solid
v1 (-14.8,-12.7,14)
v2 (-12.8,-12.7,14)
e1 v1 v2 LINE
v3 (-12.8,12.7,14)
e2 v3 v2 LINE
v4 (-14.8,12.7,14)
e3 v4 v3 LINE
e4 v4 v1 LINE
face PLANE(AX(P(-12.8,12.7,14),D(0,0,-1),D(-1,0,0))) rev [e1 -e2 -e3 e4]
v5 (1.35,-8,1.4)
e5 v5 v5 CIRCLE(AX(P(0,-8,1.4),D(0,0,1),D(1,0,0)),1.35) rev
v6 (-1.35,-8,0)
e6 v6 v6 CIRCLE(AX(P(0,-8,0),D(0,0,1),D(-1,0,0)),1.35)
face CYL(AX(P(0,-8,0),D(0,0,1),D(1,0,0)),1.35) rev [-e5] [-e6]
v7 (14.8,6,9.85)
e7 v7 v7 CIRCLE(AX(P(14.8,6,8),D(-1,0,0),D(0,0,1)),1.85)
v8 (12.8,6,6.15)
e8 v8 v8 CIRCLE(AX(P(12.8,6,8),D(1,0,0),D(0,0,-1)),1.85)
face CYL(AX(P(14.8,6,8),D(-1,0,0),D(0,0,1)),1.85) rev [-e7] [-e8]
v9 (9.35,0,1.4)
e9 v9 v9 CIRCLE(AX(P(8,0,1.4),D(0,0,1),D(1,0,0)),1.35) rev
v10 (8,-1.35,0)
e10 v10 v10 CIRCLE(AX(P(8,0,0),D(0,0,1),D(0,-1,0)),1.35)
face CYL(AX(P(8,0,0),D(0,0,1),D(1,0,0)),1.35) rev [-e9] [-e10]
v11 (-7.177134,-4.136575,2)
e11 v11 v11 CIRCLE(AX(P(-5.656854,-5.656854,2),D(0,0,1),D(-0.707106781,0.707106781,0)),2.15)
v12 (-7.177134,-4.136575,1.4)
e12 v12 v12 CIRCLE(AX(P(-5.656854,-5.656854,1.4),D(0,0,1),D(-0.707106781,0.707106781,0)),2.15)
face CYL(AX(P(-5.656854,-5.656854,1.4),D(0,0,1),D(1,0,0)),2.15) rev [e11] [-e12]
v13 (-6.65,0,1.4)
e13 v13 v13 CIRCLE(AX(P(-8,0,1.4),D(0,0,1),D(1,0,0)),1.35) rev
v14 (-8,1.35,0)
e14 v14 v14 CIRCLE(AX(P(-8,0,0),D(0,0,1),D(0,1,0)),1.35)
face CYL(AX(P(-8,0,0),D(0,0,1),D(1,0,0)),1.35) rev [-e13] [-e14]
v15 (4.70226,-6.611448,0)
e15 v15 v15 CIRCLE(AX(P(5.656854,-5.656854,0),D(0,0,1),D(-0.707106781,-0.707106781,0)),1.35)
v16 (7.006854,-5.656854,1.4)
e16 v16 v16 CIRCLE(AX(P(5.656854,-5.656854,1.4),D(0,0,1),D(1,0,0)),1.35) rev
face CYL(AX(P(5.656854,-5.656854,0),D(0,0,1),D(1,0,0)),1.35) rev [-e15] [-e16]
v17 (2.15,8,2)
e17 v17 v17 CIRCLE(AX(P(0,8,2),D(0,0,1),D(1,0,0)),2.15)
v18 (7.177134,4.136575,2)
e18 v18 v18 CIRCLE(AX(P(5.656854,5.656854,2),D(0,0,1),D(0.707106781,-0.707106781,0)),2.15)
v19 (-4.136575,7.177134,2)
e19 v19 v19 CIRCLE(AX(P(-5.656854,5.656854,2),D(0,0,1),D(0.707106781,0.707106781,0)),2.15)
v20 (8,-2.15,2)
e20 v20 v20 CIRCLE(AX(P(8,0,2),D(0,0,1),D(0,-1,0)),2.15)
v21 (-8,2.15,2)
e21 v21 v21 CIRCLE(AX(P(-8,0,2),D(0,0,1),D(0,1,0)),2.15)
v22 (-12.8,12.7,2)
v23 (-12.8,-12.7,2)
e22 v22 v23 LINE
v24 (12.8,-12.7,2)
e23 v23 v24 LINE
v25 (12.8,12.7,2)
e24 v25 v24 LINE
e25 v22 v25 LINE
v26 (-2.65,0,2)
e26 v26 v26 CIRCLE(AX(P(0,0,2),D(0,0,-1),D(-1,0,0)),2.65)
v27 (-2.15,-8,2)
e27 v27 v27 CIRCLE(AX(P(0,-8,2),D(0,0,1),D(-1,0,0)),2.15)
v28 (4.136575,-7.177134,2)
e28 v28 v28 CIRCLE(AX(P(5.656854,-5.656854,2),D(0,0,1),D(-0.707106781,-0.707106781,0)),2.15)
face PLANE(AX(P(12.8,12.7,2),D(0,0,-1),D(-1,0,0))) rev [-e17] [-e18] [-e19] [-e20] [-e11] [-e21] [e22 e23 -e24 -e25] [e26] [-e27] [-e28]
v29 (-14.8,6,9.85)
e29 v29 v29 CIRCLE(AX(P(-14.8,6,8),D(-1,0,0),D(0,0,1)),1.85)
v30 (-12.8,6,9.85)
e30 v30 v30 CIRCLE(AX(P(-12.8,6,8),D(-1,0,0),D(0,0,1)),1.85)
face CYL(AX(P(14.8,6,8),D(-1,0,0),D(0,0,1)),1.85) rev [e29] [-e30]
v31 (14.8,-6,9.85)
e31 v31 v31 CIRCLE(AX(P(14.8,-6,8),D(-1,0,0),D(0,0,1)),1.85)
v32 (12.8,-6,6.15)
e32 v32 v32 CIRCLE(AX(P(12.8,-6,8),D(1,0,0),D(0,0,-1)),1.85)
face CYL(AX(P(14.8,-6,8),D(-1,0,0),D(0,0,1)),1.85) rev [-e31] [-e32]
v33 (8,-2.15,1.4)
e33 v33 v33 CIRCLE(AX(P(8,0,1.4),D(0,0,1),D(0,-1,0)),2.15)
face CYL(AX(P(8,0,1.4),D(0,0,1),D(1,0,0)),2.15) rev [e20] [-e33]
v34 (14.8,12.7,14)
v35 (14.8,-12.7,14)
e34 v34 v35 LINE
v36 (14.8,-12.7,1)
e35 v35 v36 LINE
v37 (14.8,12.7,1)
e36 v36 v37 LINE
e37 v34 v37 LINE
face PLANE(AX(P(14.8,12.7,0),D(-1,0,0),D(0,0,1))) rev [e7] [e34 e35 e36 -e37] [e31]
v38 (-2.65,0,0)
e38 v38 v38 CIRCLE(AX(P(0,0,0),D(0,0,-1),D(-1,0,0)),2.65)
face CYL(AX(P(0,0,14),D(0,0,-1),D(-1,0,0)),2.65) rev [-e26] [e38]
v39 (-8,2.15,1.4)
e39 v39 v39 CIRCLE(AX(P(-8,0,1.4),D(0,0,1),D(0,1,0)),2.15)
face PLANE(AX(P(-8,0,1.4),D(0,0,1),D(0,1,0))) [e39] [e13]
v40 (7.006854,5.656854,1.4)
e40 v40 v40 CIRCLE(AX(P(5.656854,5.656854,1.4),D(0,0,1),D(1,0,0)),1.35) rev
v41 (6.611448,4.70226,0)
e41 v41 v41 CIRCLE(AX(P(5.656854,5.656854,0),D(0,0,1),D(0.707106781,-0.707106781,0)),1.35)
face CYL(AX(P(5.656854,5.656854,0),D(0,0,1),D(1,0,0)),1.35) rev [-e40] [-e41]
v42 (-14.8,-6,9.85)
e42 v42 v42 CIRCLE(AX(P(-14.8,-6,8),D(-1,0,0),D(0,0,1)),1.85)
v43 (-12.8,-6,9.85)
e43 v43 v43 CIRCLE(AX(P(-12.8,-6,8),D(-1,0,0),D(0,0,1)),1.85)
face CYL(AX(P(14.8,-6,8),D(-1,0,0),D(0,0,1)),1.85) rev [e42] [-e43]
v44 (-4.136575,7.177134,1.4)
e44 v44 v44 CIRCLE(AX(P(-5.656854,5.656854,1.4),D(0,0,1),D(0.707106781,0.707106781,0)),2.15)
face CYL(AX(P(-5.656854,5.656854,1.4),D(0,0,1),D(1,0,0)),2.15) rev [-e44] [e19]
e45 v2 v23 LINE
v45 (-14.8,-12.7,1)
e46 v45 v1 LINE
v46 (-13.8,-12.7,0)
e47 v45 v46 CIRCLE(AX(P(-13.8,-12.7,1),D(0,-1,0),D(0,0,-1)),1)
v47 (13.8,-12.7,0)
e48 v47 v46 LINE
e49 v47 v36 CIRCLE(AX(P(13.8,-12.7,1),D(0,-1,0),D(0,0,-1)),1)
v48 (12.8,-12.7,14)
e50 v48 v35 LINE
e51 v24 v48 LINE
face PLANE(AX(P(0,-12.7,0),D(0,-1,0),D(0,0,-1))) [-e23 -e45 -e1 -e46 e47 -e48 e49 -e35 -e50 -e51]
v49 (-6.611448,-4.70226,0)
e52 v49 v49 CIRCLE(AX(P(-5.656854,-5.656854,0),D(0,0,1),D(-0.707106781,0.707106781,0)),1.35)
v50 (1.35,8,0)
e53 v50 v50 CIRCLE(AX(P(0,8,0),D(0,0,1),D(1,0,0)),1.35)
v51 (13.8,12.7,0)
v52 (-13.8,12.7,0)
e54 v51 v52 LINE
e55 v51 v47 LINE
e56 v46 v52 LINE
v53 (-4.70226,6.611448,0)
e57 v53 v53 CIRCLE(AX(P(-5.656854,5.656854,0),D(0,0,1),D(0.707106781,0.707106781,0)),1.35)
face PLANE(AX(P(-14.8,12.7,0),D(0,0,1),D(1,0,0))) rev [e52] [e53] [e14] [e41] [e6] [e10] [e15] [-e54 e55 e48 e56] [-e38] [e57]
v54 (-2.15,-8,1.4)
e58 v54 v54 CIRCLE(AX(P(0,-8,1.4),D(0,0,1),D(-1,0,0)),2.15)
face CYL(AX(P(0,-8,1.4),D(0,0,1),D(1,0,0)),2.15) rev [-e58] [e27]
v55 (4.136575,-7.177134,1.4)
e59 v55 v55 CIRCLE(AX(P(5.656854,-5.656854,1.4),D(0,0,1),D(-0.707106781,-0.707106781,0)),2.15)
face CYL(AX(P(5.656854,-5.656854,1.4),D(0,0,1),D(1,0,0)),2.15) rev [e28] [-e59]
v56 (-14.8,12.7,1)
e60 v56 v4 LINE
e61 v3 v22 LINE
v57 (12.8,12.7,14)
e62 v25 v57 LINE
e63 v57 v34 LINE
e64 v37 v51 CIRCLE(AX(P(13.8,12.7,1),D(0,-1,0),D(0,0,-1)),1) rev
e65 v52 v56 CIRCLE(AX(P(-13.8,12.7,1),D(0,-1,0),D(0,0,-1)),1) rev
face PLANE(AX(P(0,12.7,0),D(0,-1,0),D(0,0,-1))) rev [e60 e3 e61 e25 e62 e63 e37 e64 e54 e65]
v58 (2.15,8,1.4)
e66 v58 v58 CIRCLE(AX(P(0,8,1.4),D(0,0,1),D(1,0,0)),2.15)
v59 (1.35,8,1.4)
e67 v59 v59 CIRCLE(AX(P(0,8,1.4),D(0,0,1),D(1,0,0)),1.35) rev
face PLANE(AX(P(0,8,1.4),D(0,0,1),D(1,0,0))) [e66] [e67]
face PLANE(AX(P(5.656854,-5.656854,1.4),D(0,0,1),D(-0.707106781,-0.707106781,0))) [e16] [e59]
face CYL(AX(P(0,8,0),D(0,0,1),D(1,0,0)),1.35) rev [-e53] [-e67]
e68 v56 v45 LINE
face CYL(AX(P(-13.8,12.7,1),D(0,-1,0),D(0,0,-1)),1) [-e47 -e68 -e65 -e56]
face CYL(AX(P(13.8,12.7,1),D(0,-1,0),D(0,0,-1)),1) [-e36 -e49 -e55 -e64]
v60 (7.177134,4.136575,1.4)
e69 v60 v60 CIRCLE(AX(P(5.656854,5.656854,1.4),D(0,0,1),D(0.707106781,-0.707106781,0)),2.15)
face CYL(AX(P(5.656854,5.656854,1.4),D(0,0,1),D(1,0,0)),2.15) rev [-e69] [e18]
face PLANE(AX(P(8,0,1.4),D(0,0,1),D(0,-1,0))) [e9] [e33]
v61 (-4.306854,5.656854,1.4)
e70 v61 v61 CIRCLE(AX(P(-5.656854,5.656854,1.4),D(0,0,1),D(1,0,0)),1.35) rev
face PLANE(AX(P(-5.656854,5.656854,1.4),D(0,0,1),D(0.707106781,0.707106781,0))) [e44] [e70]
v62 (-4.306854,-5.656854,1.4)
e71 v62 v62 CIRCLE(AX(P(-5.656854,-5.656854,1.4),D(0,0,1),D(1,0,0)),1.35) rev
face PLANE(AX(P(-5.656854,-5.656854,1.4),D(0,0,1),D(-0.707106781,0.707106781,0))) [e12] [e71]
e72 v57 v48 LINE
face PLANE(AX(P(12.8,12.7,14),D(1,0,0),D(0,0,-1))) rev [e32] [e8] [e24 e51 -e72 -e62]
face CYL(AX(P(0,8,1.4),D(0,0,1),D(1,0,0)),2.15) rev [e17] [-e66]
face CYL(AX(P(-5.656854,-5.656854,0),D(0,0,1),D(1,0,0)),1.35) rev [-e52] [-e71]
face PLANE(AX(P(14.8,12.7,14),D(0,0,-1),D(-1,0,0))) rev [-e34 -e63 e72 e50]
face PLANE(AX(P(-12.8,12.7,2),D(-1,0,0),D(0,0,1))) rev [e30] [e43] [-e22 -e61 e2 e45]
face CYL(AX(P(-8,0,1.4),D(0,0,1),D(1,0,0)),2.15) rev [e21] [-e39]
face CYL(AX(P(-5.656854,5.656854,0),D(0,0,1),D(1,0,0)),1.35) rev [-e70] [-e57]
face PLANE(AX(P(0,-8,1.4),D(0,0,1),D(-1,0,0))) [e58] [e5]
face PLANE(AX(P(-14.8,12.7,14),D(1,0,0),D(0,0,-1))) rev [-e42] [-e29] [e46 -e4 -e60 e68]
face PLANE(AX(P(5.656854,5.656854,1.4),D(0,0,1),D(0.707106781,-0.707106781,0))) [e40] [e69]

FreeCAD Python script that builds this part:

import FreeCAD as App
import Part
import Sketcher

V = App.Vector


def edges_at(feature, points):
    """Names of the edges that pass closest to the given points."""
    edges = feature.Shape.Edges
    near = lambda p: min(range(len(edges)), key=lambda i: edges[i].distToShape(Part.Vertex(*p))[0])
    return sorted({f"Edge{near(p) + 1}" for p in points})

doc = App.newDocument("Part")
body = doc.addObject("PartDesign::Body", "Body")

sketch1 = doc.addObject("Sketcher::SketchObject", "Sketch")
body.addObject(sketch1)
sketch1.AttachmentSupport = (doc.XZ_Plane, [""])
sketch1.MapMode = "FlatFace"
sketch1.addGeometry([
    Part.LineSegment(V(14.8, 0, 0), V(-14.8, 0, 0)),
    Part.LineSegment(V(-14.8, 0, 0), V(-14.8, 14, 0)),
    Part.LineSegment(V(-14.8, 14, 0), V(-12.8, 14, 0)),
    Part.LineSegment(V(-12.8, 14, 0), V(-12.8, 2, 0)),
    Part.LineSegment(V(-12.8, 2, 0), V(12.8, 2, 0)),
    Part.LineSegment(V(12.8, 2, 0), V(12.8, 14, 0)),
    Part.LineSegment(V(12.8, 14, 0), V(14.8, 14, 0)),
    Part.LineSegment(V(14.8, 14, 0), V(14.8, 0, 0)),
], False)
sketch1.addConstraint([
    Sketcher.Constraint("Coincident", 0, 2, 1, 1),
    Sketcher.Constraint("Coincident", 1, 2, 2, 1),
    Sketcher.Constraint("Coincident", 2, 2, 3, 1),
    Sketcher.Constraint("Coincident", 3, 2, 4, 1),
    Sketcher.Constraint("Coincident", 4, 2, 5, 1),
    Sketcher.Constraint("Coincident", 5, 2, 6, 1),
    Sketcher.Constraint("Coincident", 6, 2, 7, 1),
    Sketcher.Constraint("Coincident", 7, 2, 0, 1),
    Sketcher.Constraint("Horizontal", 0),
    Sketcher.Constraint("Vertical", 1),
    Sketcher.Constraint("Horizontal", 2),
    Sketcher.Constraint("Vertical", 3),
    Sketcher.Constraint("Horizontal", 4),
    Sketcher.Constraint("Vertical", 5),
    Sketcher.Constraint("Horizontal", 6),
    Sketcher.Constraint("Vertical", 7),
    Sketcher.Constraint("Symmetric", 0, 2, 7, 2, -1, 1),
    Sketcher.Constraint("Symmetric", 2, 2, 5, 2, -2),
    Sketcher.Constraint("DistanceX", 2, 1, 2, 2, 2.0),
    Sketcher.Constraint("DistanceY", 1, 1, 1, 2, 14.0),
    Sketcher.Constraint("DistanceY", 3, 2, 3, 1, 12.0),
    Sketcher.Constraint("DistanceX", 0, 2, 0, 1, 29.6),
])
pad1 = doc.addObject("PartDesign::Pad", "Pad")
body.addObject(pad1)
pad1.Profile = sketch1
pad1.Length = 25.4
pad1.Midplane = True

sketch2 = doc.addObject("Sketcher::SketchObject", "Sketch001")
body.addObject(sketch2)
sketch2.AttachmentSupport = (doc.YZ_Plane, [""])
sketch2.MapMode = "FlatFace"
sketch2.AttachmentOffset = App.Placement(V(0, 0, -14.8), App.Rotation())
sketch2.addGeometry([
    Part.Circle(V(-6, 8, 0), V(0, 0, 1), 1.9),
    Part.Circle(V(6, 8, 0), V(0, 0, 1), 1.9),
], False)
sketch2.addConstraint([
    Sketcher.Constraint("Equal", 0, 1),
    Sketcher.Constraint("Symmetric", 0, 3, 1, 3, -2),
    Sketcher.Constraint("Diameter", 0, 3.7),
    Sketcher.Constraint("DistanceX", 0, 3, -1, 1, 6.0),
    Sketcher.Constraint("DistanceY", -1, 1, 0, 3, 8.0),
])
pocket1 = doc.addObject("PartDesign::Pocket", "Pocket")
body.addObject(pocket1)
pocket1.Profile = sketch2
pocket1.Type = "ThroughAll"
pocket1.Reversed = True

sketch3 = doc.addObject("Sketcher::SketchObject", "Sketch002")
body.addObject(sketch3)
sketch3.AttachmentSupport = (doc.XY_Plane, [""])
sketch3.MapMode = "FlatFace"
sketch3.addGeometry(Part.Circle(V(0, 0, 0), V(0, 0, 1), 2.6), False)
sketch3.addConstraint([
    Sketcher.Constraint("Coincident", 0, 3, -1, 1),
    Sketcher.Constraint("Diameter", 0, 5.3),
])
pocket2 = doc.addObject("PartDesign::Pocket", "Pocket001")
body.addObject(pocket2)
pocket2.Profile = sketch3
pocket2.Type = "ThroughAll"
pocket2.Reversed = True

sketch4 = doc.addObject("Sketcher::SketchObject", "Sketch003")
body.addObject(sketch4)
sketch4.AttachmentSupport = (doc.XY_Plane, [""])
sketch4.MapMode = "FlatFace"
sketch4.AttachmentOffset = App.Placement(V(0, 0, 2), App.Rotation())
sketch4.addGeometry(Part.Circle(V(0, 8, 0), V(0, 0, 1), 1.4), False)
sketch4.addConstraint([
    Sketcher.Constraint("PointOnObject", 0, 3, -2),
    Sketcher.Constraint("Diameter", 0, 2.7),
    Sketcher.Constraint("DistanceY", -1, 1, 0, 3, 8.0),
])
pocket3 = doc.addObject("PartDesign::Pocket", "Pocket002")
body.addObject(pocket3)
pocket3.Profile = sketch4
pocket3.Type = "ThroughAll"

sketch5 = doc.addObject("Sketcher::SketchObject", "Sketch004")
body.addObject(sketch5)
sketch5.AttachmentSupport = (doc.XY_Plane, [""])
sketch5.MapMode = "FlatFace"
sketch5.AttachmentOffset = App.Placement(V(0, 0, 2), App.Rotation())
sketch5.addGeometry(Part.Circle(V(0, 8, 0), V(0, 0, 1), 2.1), False)
sketch5.addConstraint([
    Sketcher.Constraint("PointOnObject", 0, 3, -2),
    Sketcher.Constraint("Diameter", 0, 4.3),
    Sketcher.Constraint("DistanceY", -1, 1, 0, 3, 8.0),
])
pocket4 = doc.addObject("PartDesign::Pocket", "Pocket003")
body.addObject(pocket4)
pocket4.Profile = sketch5
pocket4.Length = 0.6
doc.recompute()

polarpattern = doc.addObject("PartDesign::PolarPattern", "PolarPattern")
body.addObject(polarpattern)
polarpattern.Originals = [pocket3, pocket4]
polarpattern.Axis = (doc.Z_Axis, [""])
polarpattern.Angle = 360
polarpattern.Occurrences = 8
body.Tip = polarpattern
doc.recompute()

fillet = doc.addObject("PartDesign::Fillet", "Fillet")
body.addObject(fillet)
fillet.Base = (polarpattern, edges_at(polarpattern, [(-14.8, 0, 0), (14.8, 0, 0)]))
fillet.Radius = 1

doc.recompute()
